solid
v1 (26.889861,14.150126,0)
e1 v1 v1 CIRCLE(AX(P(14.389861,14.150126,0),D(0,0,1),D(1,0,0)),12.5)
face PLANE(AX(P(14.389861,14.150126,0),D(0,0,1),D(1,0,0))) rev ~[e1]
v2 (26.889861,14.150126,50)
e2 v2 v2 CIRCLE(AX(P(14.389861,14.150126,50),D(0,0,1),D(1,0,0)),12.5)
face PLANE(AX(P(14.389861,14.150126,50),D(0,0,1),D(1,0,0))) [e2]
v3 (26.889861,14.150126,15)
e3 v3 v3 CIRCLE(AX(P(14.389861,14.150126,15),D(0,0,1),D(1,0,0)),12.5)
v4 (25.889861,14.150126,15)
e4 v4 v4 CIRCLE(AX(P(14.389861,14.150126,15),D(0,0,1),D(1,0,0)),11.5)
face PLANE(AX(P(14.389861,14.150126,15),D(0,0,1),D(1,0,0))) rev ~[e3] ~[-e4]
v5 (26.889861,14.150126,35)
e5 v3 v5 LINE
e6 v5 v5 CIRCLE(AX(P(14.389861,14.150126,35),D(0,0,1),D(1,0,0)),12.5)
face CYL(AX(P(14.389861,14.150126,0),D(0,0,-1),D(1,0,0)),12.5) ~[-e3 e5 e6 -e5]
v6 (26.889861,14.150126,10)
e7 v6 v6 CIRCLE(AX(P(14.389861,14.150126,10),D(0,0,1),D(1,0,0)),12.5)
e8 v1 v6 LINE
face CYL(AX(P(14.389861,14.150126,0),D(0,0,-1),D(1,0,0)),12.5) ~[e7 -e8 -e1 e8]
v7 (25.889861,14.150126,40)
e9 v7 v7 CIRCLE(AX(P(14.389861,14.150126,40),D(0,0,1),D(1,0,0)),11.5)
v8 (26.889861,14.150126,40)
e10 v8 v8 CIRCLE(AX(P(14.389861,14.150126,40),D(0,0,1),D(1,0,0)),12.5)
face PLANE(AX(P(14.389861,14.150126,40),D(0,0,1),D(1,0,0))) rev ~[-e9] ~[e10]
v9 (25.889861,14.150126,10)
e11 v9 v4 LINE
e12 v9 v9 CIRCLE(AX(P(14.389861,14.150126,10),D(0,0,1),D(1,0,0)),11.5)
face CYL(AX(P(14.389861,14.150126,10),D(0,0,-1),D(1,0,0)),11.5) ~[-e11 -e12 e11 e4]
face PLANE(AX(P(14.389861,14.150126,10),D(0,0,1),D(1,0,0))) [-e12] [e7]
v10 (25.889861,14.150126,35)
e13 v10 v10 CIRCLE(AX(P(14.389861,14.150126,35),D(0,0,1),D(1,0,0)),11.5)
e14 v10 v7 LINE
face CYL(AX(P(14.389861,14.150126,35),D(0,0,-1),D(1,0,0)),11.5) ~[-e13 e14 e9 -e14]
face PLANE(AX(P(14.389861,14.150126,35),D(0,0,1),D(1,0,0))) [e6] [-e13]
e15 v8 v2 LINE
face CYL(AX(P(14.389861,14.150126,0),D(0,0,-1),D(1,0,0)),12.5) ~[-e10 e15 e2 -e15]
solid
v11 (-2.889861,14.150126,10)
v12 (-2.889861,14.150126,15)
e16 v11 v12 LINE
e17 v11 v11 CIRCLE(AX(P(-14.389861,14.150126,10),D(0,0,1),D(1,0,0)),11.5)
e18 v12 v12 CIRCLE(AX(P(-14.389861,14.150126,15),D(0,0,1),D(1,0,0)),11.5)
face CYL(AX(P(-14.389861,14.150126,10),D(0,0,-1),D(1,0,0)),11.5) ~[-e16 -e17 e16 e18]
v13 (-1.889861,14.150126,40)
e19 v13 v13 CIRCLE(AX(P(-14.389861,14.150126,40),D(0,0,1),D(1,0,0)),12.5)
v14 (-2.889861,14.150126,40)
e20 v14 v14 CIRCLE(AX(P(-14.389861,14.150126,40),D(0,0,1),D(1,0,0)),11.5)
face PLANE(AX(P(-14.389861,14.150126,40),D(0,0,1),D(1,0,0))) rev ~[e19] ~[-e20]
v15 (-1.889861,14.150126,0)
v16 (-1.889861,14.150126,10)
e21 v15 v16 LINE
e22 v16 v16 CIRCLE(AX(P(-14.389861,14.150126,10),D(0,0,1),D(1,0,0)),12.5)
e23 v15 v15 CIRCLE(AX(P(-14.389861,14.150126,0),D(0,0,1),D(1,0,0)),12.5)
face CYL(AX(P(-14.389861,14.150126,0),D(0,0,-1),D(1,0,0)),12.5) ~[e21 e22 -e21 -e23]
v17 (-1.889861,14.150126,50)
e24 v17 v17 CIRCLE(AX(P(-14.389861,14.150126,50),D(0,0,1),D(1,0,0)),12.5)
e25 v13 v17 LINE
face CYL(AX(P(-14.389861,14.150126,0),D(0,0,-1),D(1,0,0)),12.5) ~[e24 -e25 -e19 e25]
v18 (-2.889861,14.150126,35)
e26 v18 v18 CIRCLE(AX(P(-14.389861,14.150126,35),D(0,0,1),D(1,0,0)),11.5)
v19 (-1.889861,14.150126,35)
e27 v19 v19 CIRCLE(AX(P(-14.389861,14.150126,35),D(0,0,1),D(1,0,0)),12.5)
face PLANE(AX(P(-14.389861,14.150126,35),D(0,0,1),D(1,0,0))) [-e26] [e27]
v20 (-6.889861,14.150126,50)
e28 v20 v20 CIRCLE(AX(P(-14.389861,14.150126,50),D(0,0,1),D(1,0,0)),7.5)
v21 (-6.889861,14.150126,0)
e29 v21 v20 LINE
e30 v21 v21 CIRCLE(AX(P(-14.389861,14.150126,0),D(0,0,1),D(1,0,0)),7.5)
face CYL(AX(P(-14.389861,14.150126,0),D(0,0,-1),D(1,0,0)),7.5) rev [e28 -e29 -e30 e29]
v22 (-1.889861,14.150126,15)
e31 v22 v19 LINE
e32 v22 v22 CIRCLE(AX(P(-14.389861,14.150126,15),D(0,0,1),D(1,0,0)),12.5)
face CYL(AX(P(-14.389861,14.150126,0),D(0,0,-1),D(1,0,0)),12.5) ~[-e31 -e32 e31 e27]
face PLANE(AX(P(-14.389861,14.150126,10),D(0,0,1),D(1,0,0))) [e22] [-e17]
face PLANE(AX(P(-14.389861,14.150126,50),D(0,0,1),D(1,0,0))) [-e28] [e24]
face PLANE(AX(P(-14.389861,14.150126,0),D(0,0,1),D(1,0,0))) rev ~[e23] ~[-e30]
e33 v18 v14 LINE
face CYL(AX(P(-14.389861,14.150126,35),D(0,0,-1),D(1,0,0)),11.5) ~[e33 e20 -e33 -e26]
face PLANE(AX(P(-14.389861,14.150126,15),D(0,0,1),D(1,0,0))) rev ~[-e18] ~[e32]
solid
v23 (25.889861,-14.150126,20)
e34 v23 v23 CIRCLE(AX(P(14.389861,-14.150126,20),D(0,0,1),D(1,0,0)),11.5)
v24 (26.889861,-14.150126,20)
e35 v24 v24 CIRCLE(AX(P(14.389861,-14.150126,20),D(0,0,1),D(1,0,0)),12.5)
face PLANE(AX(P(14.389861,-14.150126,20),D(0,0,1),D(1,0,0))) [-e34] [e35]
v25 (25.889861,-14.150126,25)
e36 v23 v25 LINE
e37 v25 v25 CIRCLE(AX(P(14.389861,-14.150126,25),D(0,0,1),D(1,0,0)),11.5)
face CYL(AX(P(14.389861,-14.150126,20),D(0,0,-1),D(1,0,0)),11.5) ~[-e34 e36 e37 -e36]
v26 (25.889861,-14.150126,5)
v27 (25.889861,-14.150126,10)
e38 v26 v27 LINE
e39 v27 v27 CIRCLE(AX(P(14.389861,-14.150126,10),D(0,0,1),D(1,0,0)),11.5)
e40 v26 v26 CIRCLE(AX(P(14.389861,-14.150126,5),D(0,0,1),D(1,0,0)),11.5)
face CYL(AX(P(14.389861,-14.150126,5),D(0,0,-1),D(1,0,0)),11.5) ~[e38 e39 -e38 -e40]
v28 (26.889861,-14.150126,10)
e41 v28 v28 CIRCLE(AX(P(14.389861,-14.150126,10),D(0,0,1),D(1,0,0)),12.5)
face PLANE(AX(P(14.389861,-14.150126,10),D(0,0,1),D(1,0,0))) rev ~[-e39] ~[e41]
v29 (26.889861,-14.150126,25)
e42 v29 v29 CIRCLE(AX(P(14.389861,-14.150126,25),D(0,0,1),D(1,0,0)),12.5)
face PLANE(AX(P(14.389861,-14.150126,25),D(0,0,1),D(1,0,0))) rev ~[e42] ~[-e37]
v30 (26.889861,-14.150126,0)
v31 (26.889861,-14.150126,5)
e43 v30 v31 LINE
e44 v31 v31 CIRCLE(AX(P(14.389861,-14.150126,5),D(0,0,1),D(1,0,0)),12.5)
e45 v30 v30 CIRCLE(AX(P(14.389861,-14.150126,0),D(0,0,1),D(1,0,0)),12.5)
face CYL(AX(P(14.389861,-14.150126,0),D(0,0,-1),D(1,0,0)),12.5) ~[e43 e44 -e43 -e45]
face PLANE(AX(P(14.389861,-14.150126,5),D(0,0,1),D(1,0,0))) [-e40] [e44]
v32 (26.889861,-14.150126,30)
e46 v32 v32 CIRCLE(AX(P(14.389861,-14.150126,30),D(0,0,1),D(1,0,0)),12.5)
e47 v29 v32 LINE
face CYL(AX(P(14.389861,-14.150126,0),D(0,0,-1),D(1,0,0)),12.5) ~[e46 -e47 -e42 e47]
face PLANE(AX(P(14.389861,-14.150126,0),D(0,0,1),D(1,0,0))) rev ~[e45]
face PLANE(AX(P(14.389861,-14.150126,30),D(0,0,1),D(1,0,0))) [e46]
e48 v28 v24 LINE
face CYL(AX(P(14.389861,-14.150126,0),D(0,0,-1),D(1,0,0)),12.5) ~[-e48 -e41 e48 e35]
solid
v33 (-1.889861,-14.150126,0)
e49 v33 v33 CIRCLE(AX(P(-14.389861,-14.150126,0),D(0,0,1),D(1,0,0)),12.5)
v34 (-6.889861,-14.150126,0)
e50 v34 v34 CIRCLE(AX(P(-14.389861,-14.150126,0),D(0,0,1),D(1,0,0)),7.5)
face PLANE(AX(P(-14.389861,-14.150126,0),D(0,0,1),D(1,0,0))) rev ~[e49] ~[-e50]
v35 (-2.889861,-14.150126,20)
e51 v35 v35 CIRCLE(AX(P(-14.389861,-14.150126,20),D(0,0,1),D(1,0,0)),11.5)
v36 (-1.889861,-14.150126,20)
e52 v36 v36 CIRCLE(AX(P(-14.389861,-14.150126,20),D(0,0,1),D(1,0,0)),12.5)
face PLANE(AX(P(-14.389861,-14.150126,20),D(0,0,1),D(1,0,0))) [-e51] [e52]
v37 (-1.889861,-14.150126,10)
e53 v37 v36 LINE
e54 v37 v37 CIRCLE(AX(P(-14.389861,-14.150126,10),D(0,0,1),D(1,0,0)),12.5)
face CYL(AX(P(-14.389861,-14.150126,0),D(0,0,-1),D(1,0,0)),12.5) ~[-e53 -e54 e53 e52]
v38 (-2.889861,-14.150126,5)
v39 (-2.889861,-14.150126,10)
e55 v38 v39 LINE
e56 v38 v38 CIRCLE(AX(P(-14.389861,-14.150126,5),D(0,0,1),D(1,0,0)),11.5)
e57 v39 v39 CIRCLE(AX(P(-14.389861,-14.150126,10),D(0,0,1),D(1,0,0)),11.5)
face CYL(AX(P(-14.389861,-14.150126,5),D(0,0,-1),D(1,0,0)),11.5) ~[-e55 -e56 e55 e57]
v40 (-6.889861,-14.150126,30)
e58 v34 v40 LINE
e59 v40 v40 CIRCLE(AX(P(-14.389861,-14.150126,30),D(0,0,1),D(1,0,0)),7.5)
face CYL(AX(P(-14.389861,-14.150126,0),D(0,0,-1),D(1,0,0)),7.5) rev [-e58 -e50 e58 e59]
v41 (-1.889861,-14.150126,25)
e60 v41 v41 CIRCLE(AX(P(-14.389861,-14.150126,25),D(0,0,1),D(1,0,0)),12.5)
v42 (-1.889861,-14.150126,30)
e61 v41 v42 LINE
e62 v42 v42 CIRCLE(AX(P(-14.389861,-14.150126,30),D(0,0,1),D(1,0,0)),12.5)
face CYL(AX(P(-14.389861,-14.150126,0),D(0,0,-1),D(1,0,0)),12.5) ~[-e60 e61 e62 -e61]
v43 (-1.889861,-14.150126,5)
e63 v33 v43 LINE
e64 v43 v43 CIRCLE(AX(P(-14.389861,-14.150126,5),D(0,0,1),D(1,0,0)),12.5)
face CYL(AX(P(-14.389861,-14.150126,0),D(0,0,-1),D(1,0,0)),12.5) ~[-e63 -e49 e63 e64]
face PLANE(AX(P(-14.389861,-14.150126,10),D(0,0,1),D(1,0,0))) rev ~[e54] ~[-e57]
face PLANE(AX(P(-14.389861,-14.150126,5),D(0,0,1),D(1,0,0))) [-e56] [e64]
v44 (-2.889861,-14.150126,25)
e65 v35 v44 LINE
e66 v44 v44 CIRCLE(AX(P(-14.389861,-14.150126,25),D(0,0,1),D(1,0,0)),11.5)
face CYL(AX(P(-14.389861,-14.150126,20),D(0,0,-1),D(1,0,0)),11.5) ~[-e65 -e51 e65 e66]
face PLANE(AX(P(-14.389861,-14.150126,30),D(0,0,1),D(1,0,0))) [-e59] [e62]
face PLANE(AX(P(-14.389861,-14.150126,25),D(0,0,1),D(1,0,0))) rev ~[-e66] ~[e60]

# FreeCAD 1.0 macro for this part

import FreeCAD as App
import Part
import Sketcher

V = App.Vector
Q = App.Units.Quantity

doc = App.newDocument("Part")
body = doc.addObject("PartDesign::Body", "Body")

sketch1 = doc.addObject("Sketcher::SketchObject", "Sketch")
body.addObject(sketch1)
sketch1.AttachmentSupport = (doc.XY_Plane, [""])
sketch1.MapMode = "FlatFace"
sketch1.addGeometry(Part.Circle(V(14, 14, 0), V(0, 0, 1), 12), False)
sketch1.addConstraint(Sketcher.Constraint("Diameter", 0, Q("25 mm")))
sketch1.addConstraint(Sketcher.Constraint("DistanceX", -1, 1, 0, 3, Q("14.389861 mm")))
sketch1.addConstraint(Sketcher.Constraint("DistanceY", -1, 1, 0, 3, Q("14.150126 mm")))
pad1 = doc.addObject("PartDesign::Pad", "Pad")
body.addObject(pad1)
pad1.Profile = sketch1
pad1.Length = 50
body2 = doc.addObject("PartDesign::Body", "Body001")

sketch2 = doc.addObject("Sketcher::SketchObject", "Sketch001")
body2.addObject(sketch2)
sketch2.AttachmentSupport = (doc.getObject("XY_Plane001"), [""])
sketch2.MapMode = "FlatFace"
sketch2.addGeometry(Part.Circle(V(-14, 14, 0), V(0, 0, 1), 12), False)
sketch2.addGeometry(Part.Circle(V(-14, 14, 0), V(0, 0, 1), 8), False)
sketch2.addConstraint(Sketcher.Constraint("Coincident", 1, 3, 0, 3))
sketch2.addConstraint(Sketcher.Constraint("Diameter", 0, Q("25 mm")))
sketch2.addConstraint(Sketcher.Constraint("Diameter", 1, Q("15 mm")))
sketch2.addConstraint(Sketcher.Constraint("DistanceX", 0, 3, -1, 1, Q("14.389861 mm")))
sketch2.addConstraint(Sketcher.Constraint("DistanceY", -1, 1, 0, 3, Q("14.150126 mm")))
pad2 = doc.addObject("PartDesign::Pad", "Pad001")
body2.addObject(pad2)
pad2.Profile = sketch2
pad2.Length = 50
body3 = doc.addObject("PartDesign::Body", "Body002")

sketch3 = doc.addObject("Sketcher::SketchObject", "Sketch002")
body3.addObject(sketch3)
sketch3.AttachmentSupport = (doc.getObject("XY_Plane002"), [""])
sketch3.MapMode = "FlatFace"
sketch3.addGeometry(Part.Circle(V(14, -14, 0), V(0, 0, 1), 12), False)
sketch3.addConstraint(Sketcher.Constraint("Diameter", 0, Q("25 mm")))
sketch3.addConstraint(Sketcher.Constraint("DistanceX", -1, 1, 0, 3, Q("14.389861 mm")))
sketch3.addConstraint(Sketcher.Constraint("DistanceY", 0, 3, -1, 1, Q("14.150126 mm")))
pad3 = doc.addObject("PartDesign::Pad", "Pad002")
body3.addObject(pad3)
pad3.Profile = sketch3
pad3.Length = 30
body4 = doc.addObject("PartDesign::Body", "Body003")

sketch4 = doc.addObject("Sketcher::SketchObject", "Sketch003")
body4.addObject(sketch4)
sketch4.AttachmentSupport = (doc.getObject("XY_Plane003"), [""])
sketch4.MapMode = "FlatFace"
sketch4.addGeometry(Part.Circle(V(-14, -14, 0), V(0, 0, 1), 12), False)
sketch4.addGeometry(Part.Circle(V(-14, -14, 0), V(0, 0, 1), 8), False)
sketch4.addConstraint(Sketcher.Constraint("Coincident", 1, 3, 0, 3))
sketch4.addConstraint(Sketcher.Constraint("Diameter", 0, Q("25 mm")))
sketch4.addConstraint(Sketcher.Constraint("Diameter", 1, Q("15 mm")))
sketch4.addConstraint(Sketcher.Constraint("DistanceX", 0, 3, -1, 1, Q("14.389861 mm")))
sketch4.addConstraint(Sketcher.Constraint("DistanceY", 0, 3, -1, 1, Q("14.150126 mm")))
pad4 = doc.addObject("PartDesign::Pad", "Pad003")
body4.addObject(pad4)
pad4.Profile = sketch4
pad4.Length = 30
body5 = doc.addObject("PartDesign::Body", "Body004")
body5.AllowCompound = True

sketch5 = doc.addObject("Sketcher::SketchObject", "Sketch004")
body5.addObject(sketch5)
sketch5.AttachmentSupport = (doc.getObject("XY_Plane004"), [""])
sketch5.MapMode = "FlatFace"
sketch5.AttachmentOffset = App.Placement(V(0, 0, 10), App.Rotation())
sketch5.addGeometry(Part.Circle(V(-14, 14, 0), V(0, 0, 1), 12), False)
sketch5.addGeometry(Part.Circle(V(-14, 14, 0), V(0, 0, 1), 12), False)
sketch5.addGeometry(Part.Circle(V(14, 14, 0), V(0, 0, 1), 12), False)
sketch5.addGeometry(Part.Circle(V(14, 14, 0), V(0, 0, 1), 12), False)
sketch5.addConstraint(Sketcher.Constraint("Coincident", 1, 3, 0, 3))
sketch5.addConstraint(Sketcher.Constraint("Coincident", 3, 3, 2, 3))
sketch5.addConstraint(Sketcher.Constraint("Equal", 0, 2))
sketch5.addConstraint(Sketcher.Constraint("Equal", 1, 3))
sketch5.addConstraint(Sketcher.Constraint("Symmetric", 0, 3, 2, 3, -2))
sketch5.addConstraint(Sketcher.Constraint("Diameter", 0, Q("25 mm")))
sketch5.addConstraint(Sketcher.Constraint("Diameter", 1, Q("23 mm")))
sketch5.addConstraint(Sketcher.Constraint("DistanceX", 0, 3, -1, 1, Q("14.389861 mm")))
sketch5.addConstraint(Sketcher.Constraint("DistanceY", -1, 1, 0, 3, Q("14.150126 mm")))
pad5 = doc.addObject("PartDesign::Pad", "Pad004")
body5.addObject(pad5)
pad5.Profile = sketch5
pad5.Length = 5
doc.recompute()

body6 = doc.addObject("PartDesign::Body", "Body005")
body6.BaseFeature = body5
boolean = doc.addObject("PartDesign::Boolean", "Boolean")
body.addObject(boolean)
boolean.Type = "Cut"
boolean.addObjects([body6])
doc.recompute()

boolean2 = doc.addObject("PartDesign::Boolean", "Boolean001")
body2.addObject(boolean2)
boolean2.Type = "Cut"
boolean2.addObjects([body5])
body7 = doc.addObject("PartDesign::Body", "Body006")
body7.AllowCompound = True

sketch6 = doc.addObject("Sketcher::SketchObject", "Sketch005")
body7.addObject(sketch6)
sketch6.AttachmentSupport = (doc.getObject("XY_Plane006"), [""])
sketch6.MapMode = "FlatFace"
sketch6.AttachmentOffset = App.Placement(V(0, 0, 35), App.Rotation())
sketch6.addGeometry(Part.Circle(V(-14, 14, 0), V(0, 0, 1), 12), False)
sketch6.addGeometry(Part.Circle(V(-14, 14, 0), V(0, 0, 1), 12), False)
sketch6.addGeometry(Part.Circle(V(14, 14, 0), V(0, 0, 1), 12), False)
sketch6.addGeometry(Part.Circle(V(14, 14, 0), V(0, 0, 1), 12), False)
sketch6.addConstraint(Sketcher.Constraint("Coincident", 1, 3, 0, 3))
sketch6.addConstraint(Sketcher.Constraint("Coincident", 3, 3, 2, 3))
sketch6.addConstraint(Sketcher.Constraint("Equal", 0, 2))
sketch6.addConstraint(Sketcher.Constraint("Equal", 1, 3))
sketch6.addConstraint(Sketcher.Constraint("Symmetric", 0, 3, 2, 3, -2))
sketch6.addConstraint(Sketcher.Constraint("Diameter", 0, Q("25 mm")))
sketch6.addConstraint(Sketcher.Constraint("Diameter", 1, Q("23 mm")))
sketch6.addConstraint(Sketcher.Constraint("DistanceX", 0, 3, -1, 1, Q("14.389861 mm")))
sketch6.addConstraint(Sketcher.Constraint("DistanceY", -1, 1, 0, 3, Q("14.150126 mm")))
pad6 = doc.addObject("PartDesign::Pad", "Pad005")
body7.addObject(pad6)
pad6.Profile = sketch6
pad6.Length = 5
doc.recompute()

body8 = doc.addObject("PartDesign::Body", "Body007")
body8.BaseFeature = body7
boolean3 = doc.addObject("PartDesign::Boolean", "Boolean002")
body.addObject(boolean3)
boolean3.Type = "Cut"
boolean3.addObjects([body8])
doc.recompute()

boolean4 = doc.addObject("PartDesign::Boolean", "Boolean003")
body2.addObject(boolean4)
boolean4.Type = "Cut"
boolean4.addObjects([body7])
body9 = doc.addObject("PartDesign::Body", "Body008")
body9.AllowCompound = True

sketch7 = doc.addObject("Sketcher::SketchObject", "Sketch006")
body9.addObject(sketch7)
sketch7.AttachmentSupport = (doc.getObject("XY_Plane008"), [""])
sketch7.MapMode = "FlatFace"
sketch7.AttachmentOffset = App.Placement(V(0, 0, 5), App.Rotation())
sketch7.addGeometry(Part.Circle(V(-14, -14, 0), V(0, 0, 1), 12), False)
sketch7.addGeometry(Part.Circle(V(-14, -14, 0), V(0, 0, 1), 12), False)
sketch7.addGeometry(Part.Circle(V(14, -14, 0), V(0, 0, 1), 12), False)
sketch7.addGeometry(Part.Circle(V(14, -14, 0), V(0, 0, 1), 12), False)
sketch7.addConstraint(Sketcher.Constraint("Coincident", 1, 3, 0, 3))
sketch7.addConstraint(Sketcher.Constraint("Coincident", 3, 3, 2, 3))
sketch7.addConstraint(Sketcher.Constraint("Equal", 0, 2))
sketch7.addConstraint(Sketcher.Constraint("Equal", 1, 3))
sketch7.addConstraint(Sketcher.Constraint("Symmetric", 0, 3, 2, 3, -2))
sketch7.addConstraint(Sketcher.Constraint("Diameter", 0, Q("25 mm")))
sketch7.addConstraint(Sketcher.Constraint("Diameter", 1, Q("23 mm")))
sketch7.addConstraint(Sketcher.Constraint("DistanceX", 0, 3, -1, 1, Q("14.389861 mm")))
sketch7.addConstraint(Sketcher.Constraint("DistanceY", 0, 3, -1, 1, Q("14.150126 mm")))
pad7 = doc.addObject("PartDesign::Pad", "Pad006")
body9.addObject(pad7)
pad7.Profile = sketch7
pad7.Length = 5
doc.recompute()

body10 = doc.addObject("PartDesign::Body", "Body009")
body10.BaseFeature = body9
boolean5 = doc.addObject("PartDesign::Boolean", "Boolean004")
body3.addObject(boolean5)
boolean5.Type = "Cut"
boolean5.addObjects([body10])
doc.recompute()

boolean6 = doc.addObject("PartDesign::Boolean", "Boolean005")
body4.addObject(boolean6)
boolean6.Type = "Cut"
boolean6.addObjects([body9])
body11 = doc.addObject("PartDesign::Body", "Body010")
body11.AllowCompound = True

sketch8 = doc.addObject("Sketcher::SketchObject", "Sketch007")
body11.addObject(sketch8)
sketch8.AttachmentSupport = (doc.getObject("XY_Plane010"), [""])
sketch8.MapMode = "FlatFace"
sketch8.AttachmentOffset = App.Placement(V(0, 0, 20), App.Rotation())
sketch8.addGeometry(Part.Circle(V(-14, -14, 0), V(0, 0, 1), 12), False)
sketch8.addGeometry(Part.Circle(V(-14, -14, 0), V(0, 0, 1), 12), False)
sketch8.addGeometry(Part.Circle(V(14, -14, 0), V(0, 0, 1), 12), False)
sketch8.addGeometry(Part.Circle(V(14, -14, 0), V(0, 0, 1), 12), False)
sketch8.addConstraint(Sketcher.Constraint("Coincident", 1, 3, 0, 3))
sketch8.addConstraint(Sketcher.Constraint("Coincident", 3, 3, 2, 3))
sketch8.addConstraint(Sketcher.Constraint("Equal", 0, 2))
sketch8.addConstraint(Sketcher.Constraint("Equal", 1, 3))
sketch8.addConstraint(Sketcher.Constraint("Symmetric", 0, 3, 2, 3, -2))
sketch8.addConstraint(Sketcher.Constraint("Diameter", 0, Q("25 mm")))
sketch8.addConstraint(Sketcher.Constraint("Diameter", 1, Q("23 mm")))
sketch8.addConstraint(Sketcher.Constraint("DistanceX", 0, 3, -1, 1, Q("14.389861 mm")))
sketch8.addConstraint(Sketcher.Constraint("DistanceY", 0, 3, -1, 1, Q("14.150126 mm")))
pad8 = doc.addObject("PartDesign::Pad", "Pad007")
body11.addObject(pad8)
pad8.Profile = sketch8
pad8.Length = 5
doc.recompute()

body12 = doc.addObject("PartDesign::Body", "Body011")
body12.BaseFeature = body11
boolean7 = doc.addObject("PartDesign::Boolean", "Boolean006")
body3.addObject(boolean7)
boolean7.Type = "Cut"
boolean7.addObjects([body12])
doc.recompute()

boolean8 = doc.addObject("PartDesign::Boolean", "Boolean007")
body4.addObject(boolean8)
boolean8.Type = "Cut"
boolean8.addObjects([body11])

doc.recompute()
